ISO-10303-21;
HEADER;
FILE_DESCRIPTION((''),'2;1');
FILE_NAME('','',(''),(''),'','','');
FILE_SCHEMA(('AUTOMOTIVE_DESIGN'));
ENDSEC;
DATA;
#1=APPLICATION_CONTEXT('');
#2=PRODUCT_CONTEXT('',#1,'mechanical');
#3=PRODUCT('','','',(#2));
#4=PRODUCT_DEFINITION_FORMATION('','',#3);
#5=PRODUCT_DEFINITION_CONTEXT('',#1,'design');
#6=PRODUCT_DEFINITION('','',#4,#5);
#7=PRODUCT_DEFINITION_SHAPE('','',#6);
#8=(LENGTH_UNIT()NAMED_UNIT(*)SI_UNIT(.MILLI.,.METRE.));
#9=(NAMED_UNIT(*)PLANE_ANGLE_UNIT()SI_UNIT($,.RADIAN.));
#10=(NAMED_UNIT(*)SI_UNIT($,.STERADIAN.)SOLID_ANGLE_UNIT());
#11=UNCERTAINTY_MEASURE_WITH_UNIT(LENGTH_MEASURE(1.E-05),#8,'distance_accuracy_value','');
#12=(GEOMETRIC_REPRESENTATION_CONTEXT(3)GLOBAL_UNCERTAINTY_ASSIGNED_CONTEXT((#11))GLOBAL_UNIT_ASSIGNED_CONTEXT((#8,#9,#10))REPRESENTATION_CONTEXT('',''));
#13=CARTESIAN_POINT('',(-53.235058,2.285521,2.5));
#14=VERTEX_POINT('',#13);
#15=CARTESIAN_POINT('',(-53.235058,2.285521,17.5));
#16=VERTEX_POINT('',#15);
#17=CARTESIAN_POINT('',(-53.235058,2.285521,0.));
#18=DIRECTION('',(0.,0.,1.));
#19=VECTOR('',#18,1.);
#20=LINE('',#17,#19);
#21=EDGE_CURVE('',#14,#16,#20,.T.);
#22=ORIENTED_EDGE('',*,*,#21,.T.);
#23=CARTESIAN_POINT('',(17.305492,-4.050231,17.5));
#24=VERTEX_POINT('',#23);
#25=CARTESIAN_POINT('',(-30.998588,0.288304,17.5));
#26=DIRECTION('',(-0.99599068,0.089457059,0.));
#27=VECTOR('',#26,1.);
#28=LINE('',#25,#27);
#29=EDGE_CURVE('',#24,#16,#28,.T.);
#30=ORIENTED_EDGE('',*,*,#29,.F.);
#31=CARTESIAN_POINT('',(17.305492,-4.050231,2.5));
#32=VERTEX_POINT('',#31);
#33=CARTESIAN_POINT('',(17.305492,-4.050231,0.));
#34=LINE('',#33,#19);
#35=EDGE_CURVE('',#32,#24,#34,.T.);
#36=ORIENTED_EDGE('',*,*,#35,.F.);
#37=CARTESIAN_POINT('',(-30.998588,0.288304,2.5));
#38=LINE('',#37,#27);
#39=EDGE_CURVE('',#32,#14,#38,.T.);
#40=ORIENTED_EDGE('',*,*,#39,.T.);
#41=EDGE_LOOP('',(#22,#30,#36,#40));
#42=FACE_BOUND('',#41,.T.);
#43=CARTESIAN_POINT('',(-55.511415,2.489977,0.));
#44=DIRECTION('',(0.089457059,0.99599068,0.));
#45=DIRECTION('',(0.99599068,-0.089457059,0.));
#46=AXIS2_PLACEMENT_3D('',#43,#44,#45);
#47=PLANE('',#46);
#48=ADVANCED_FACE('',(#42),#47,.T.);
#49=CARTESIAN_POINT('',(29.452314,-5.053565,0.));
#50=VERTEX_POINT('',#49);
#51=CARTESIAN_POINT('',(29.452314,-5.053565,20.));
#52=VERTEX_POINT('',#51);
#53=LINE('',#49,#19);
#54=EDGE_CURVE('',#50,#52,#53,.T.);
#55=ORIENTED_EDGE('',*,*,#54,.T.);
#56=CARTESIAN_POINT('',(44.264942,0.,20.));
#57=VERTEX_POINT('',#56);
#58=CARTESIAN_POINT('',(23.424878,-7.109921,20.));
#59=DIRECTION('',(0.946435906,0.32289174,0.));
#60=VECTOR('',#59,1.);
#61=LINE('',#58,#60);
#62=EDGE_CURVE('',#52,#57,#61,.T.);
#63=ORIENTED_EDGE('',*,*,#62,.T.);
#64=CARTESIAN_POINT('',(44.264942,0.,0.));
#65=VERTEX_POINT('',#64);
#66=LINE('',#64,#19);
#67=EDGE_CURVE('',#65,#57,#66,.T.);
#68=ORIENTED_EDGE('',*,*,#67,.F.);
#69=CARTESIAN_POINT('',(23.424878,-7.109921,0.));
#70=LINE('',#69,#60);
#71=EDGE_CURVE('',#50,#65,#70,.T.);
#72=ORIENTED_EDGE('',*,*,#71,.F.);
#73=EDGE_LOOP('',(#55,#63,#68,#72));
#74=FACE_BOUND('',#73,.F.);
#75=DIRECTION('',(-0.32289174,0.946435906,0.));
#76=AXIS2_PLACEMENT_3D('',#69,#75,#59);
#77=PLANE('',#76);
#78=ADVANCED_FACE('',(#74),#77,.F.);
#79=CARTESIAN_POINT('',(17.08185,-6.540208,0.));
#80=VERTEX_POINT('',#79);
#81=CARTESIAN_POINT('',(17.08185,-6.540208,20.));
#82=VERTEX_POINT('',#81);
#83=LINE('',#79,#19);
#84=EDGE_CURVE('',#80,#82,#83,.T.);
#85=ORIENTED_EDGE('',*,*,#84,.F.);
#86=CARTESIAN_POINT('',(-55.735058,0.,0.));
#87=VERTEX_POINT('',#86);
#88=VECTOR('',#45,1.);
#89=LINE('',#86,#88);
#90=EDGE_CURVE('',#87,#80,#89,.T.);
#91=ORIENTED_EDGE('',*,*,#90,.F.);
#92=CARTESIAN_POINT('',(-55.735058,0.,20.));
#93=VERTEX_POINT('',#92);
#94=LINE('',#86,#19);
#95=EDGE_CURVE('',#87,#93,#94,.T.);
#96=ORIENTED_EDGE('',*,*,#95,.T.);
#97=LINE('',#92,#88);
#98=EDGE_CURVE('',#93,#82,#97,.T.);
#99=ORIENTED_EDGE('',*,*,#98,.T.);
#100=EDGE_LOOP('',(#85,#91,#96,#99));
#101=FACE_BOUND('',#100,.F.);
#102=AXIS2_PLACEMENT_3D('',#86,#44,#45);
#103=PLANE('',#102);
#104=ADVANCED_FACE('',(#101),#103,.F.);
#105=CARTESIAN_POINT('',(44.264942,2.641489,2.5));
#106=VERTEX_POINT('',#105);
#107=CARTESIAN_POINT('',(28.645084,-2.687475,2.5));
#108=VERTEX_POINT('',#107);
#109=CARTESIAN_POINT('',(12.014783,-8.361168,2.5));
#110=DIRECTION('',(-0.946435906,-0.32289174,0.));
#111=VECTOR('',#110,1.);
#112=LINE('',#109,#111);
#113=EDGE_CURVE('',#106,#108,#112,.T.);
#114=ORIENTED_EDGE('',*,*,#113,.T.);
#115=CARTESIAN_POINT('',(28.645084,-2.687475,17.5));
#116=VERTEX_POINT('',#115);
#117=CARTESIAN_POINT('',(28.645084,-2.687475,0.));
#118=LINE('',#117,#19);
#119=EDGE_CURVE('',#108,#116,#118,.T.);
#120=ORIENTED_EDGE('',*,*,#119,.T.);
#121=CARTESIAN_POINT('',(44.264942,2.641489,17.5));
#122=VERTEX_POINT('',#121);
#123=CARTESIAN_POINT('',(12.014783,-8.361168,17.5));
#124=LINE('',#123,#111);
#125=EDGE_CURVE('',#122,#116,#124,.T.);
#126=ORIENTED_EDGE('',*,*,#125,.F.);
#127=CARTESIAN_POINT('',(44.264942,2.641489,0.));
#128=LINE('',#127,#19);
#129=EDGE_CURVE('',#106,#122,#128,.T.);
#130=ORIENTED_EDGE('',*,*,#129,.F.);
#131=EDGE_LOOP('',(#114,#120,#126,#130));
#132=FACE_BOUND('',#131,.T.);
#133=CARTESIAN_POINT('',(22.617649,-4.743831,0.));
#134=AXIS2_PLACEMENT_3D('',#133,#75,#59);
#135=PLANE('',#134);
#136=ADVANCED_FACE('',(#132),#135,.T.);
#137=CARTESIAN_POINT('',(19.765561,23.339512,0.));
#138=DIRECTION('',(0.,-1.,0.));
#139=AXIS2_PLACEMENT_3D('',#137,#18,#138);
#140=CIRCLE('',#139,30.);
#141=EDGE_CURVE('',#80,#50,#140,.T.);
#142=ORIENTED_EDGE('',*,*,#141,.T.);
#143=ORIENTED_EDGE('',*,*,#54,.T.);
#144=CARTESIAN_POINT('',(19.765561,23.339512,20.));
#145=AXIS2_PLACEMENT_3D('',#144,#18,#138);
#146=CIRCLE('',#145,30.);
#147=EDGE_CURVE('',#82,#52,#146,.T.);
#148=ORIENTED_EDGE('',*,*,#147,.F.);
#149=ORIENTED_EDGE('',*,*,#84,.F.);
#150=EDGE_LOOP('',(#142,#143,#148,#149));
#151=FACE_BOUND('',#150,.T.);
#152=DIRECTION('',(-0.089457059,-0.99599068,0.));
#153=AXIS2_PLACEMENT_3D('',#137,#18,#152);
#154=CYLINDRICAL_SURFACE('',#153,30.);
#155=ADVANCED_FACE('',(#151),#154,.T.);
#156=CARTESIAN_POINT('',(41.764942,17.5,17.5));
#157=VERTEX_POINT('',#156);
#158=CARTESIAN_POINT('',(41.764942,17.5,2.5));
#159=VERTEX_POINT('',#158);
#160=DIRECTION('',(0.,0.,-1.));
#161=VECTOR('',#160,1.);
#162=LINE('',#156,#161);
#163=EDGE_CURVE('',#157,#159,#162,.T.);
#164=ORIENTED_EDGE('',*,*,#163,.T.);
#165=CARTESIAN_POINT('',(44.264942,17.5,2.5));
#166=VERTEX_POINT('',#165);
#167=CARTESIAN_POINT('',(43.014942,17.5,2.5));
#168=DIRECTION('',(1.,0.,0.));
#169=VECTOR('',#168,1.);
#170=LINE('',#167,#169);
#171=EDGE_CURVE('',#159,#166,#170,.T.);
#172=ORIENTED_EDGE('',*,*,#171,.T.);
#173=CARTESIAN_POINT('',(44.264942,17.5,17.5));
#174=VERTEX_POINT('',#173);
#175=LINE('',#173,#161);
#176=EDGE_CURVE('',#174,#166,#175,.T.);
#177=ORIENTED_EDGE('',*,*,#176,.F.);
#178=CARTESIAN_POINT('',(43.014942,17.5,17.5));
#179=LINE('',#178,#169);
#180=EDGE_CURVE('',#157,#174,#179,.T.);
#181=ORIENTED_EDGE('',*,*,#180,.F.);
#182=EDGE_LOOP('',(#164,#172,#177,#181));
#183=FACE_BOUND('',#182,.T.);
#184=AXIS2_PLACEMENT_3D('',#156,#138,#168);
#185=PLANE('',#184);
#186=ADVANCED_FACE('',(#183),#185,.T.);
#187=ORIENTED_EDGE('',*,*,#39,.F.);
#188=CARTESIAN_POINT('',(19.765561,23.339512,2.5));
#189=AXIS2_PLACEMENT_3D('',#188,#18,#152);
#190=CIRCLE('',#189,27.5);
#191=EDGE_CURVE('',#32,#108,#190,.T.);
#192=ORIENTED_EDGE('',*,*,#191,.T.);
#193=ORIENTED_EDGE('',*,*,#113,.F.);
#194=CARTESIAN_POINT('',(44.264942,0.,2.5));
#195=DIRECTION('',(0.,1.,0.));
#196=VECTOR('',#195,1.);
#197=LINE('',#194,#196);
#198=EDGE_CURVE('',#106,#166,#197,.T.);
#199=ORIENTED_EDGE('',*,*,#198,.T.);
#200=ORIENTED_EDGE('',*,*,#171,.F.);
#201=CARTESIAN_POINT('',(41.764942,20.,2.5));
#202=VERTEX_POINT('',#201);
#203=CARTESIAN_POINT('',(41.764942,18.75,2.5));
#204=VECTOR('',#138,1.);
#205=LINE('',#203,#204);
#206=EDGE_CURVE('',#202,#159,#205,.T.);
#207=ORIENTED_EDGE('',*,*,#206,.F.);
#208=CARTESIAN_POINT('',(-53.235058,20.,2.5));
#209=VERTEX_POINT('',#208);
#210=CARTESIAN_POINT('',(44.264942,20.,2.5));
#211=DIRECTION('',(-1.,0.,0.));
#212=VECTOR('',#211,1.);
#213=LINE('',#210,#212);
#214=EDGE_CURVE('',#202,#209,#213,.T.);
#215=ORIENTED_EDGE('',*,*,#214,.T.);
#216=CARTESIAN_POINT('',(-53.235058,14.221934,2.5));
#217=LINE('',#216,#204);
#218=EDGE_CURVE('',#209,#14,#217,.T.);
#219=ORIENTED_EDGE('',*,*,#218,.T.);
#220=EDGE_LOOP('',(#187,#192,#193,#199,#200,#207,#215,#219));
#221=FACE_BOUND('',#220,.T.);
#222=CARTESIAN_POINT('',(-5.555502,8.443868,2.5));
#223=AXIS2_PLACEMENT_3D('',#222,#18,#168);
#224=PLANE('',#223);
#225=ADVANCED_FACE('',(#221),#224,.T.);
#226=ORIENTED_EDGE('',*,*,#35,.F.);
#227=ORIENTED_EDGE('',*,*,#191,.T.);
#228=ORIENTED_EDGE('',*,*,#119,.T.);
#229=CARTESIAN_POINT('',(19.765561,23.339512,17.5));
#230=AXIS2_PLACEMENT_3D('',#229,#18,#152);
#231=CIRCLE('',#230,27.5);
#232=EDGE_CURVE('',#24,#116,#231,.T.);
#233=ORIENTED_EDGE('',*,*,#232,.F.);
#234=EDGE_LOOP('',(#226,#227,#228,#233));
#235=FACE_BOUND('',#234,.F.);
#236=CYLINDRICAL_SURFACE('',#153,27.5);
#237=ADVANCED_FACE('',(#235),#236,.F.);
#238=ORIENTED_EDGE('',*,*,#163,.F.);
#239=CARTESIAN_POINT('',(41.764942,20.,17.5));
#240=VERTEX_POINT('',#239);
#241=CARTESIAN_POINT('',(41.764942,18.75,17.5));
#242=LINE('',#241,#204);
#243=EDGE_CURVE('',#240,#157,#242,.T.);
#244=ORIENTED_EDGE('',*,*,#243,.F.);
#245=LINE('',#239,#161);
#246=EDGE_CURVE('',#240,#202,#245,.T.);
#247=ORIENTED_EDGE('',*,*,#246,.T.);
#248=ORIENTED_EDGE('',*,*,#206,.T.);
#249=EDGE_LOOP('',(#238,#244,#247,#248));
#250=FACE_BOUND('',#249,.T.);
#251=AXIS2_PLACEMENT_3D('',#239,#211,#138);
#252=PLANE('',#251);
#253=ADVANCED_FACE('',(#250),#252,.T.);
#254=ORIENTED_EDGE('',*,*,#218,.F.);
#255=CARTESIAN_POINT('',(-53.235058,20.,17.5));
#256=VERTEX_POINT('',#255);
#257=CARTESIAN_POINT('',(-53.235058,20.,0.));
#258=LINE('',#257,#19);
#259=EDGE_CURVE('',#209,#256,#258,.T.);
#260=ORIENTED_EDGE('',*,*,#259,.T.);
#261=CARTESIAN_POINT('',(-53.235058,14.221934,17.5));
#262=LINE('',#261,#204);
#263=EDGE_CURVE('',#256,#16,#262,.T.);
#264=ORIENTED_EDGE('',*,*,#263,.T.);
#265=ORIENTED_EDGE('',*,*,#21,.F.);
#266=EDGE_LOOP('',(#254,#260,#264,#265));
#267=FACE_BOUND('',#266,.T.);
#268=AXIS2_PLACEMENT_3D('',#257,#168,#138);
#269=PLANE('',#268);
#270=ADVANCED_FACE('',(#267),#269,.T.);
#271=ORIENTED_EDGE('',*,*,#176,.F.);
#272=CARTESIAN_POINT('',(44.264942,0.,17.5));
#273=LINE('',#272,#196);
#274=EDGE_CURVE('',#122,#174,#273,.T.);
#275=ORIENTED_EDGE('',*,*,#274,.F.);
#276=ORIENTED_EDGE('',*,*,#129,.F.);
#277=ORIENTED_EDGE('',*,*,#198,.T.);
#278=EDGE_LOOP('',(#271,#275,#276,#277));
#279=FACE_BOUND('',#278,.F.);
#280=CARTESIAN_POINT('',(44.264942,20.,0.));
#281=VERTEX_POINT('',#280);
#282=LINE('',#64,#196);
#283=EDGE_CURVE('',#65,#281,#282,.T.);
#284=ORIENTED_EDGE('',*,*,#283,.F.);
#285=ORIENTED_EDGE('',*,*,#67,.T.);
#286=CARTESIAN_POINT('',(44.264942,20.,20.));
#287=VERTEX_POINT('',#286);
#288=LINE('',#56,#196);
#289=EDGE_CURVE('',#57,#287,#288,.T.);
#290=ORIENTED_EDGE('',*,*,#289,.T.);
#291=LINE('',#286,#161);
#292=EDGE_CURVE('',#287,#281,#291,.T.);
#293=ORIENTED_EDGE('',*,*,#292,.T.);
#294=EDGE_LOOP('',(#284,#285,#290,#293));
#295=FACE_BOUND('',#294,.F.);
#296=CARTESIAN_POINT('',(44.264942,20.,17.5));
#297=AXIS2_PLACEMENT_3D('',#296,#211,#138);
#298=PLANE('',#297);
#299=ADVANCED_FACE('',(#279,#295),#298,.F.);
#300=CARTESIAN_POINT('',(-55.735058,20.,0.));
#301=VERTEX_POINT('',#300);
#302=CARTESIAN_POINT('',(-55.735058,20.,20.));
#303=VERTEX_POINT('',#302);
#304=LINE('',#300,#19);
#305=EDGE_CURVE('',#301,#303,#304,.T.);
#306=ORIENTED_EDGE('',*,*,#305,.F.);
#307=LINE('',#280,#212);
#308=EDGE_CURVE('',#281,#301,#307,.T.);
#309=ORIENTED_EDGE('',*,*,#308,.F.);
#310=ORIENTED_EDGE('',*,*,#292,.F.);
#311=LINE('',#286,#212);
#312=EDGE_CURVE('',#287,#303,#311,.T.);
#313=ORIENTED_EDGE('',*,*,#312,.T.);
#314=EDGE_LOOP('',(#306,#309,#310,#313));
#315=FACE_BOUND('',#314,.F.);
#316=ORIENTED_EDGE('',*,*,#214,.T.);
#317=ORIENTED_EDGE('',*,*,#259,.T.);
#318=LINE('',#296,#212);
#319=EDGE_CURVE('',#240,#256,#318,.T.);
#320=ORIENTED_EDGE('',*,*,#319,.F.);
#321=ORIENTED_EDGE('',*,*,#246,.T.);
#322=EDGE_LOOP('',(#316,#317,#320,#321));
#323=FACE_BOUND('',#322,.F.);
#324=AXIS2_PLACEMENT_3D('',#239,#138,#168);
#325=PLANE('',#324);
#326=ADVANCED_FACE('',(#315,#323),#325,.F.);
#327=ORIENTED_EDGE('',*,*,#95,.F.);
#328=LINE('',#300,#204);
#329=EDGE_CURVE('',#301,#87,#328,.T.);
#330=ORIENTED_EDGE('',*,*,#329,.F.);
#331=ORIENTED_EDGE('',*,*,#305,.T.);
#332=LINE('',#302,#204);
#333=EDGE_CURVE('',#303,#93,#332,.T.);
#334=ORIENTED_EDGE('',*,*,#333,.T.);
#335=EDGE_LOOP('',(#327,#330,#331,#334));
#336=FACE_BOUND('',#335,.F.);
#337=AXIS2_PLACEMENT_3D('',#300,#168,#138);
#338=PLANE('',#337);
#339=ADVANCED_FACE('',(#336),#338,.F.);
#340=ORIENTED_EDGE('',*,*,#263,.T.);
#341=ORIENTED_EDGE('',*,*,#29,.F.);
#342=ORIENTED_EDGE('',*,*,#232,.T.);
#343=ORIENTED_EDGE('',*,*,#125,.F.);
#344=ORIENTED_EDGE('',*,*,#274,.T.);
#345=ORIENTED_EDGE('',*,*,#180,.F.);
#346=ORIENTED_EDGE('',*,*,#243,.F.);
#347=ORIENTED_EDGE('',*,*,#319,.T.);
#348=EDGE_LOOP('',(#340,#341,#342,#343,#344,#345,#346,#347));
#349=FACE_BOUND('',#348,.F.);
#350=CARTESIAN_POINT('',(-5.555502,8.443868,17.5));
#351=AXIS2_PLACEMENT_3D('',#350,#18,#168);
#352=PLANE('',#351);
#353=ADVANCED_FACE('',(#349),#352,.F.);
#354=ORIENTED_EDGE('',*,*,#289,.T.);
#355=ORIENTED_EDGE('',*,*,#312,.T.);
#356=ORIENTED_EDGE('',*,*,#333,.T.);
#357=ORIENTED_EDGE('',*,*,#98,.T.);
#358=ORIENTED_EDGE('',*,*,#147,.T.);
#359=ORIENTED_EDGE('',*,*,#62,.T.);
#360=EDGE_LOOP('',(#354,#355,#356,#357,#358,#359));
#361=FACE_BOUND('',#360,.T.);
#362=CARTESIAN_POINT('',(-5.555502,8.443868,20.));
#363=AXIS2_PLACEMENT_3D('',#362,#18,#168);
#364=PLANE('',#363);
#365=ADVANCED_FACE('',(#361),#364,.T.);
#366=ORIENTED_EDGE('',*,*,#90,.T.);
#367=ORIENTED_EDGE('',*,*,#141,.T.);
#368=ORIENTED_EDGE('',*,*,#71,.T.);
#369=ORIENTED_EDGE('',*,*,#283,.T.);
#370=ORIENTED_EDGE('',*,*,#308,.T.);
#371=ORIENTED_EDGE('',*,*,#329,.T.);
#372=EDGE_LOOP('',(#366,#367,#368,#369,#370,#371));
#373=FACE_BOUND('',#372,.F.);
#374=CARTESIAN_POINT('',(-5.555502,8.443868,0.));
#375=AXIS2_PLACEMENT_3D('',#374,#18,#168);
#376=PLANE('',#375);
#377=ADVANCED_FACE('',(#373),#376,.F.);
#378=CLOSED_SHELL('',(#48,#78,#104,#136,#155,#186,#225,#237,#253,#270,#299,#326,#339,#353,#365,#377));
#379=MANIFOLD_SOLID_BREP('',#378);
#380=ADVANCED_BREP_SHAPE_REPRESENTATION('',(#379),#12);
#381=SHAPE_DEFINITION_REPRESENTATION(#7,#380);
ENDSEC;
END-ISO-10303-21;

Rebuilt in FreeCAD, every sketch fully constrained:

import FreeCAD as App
import Part
import Sketcher

V = App.Vector


def edges_at(feature, points):
    """Names of the edges that pass closest to the given points."""
    edges = feature.Shape.Edges
    near = lambda p: min(range(len(edges)), key=lambda i: edges[i].distToShape(Part.Vertex(*p))[0])
    return sorted({f"Edge{near(p) + 1}" for p in points})


def faces_at(feature, points):
    """Names of the faces that lie closest to the given points."""
    faces = feature.Shape.Faces
    near = lambda p: min(range(len(faces)), key=lambda i: faces[i].distToShape(Part.Vertex(*p))[0])
    return sorted({f"Face{near(p) + 1}" for p in points})

doc = App.newDocument("Part")
body = doc.addObject("PartDesign::Body", "Body")

sketch1 = body.newObject("Sketcher::SketchObject", "Sketch")
sketch1.AttachmentSupport = (doc.getObject("XY_Plane"), [""])
sketch1.MapMode = "FlatFace"
sketch1.addGeometry([
    Part.LineSegment(V(44, 20, 0), V(-56, 20, 0)),
    Part.LineSegment(V(-56, 20, 0), V(-56, 0, 0)),
    Part.LineSegment(V(-56, 0, 0), V(23, -7, 0)),
    Part.LineSegment(V(23, -7, 0), V(44, 0, 0)),
    Part.LineSegment(V(44, 0, 0), V(44, 20, 0)),
], False)
sketch1.addConstraint([
    Sketcher.Constraint("Coincident", 0, 2, 1, 1),
    Sketcher.Constraint("Coincident", 1, 2, 2, 1),
    Sketcher.Constraint("Coincident", 2, 2, 3, 1),
    Sketcher.Constraint("Coincident", 3, 2, 4, 1),
    Sketcher.Constraint("Coincident", 4, 2, 0, 1),
    Sketcher.Constraint("Horizontal", 0),
    Sketcher.Constraint("Vertical", 1),
    Sketcher.Constraint("Vertical", 4),
    Sketcher.Constraint("PointOnObject", 1, 2, -1),
    Sketcher.Constraint("PointOnObject", 3, 2, -1),
    Sketcher.Constraint("DistanceX", 0, 2, 0, 1, 100.0),
    Sketcher.Constraint("DistanceY", 1, 2, 1, 1, 20.0),
    Sketcher.Constraint("Distance", 2, 79.478591),
    Sketcher.Constraint("Distance", 3, 22.01952),
    Sketcher.Constraint("DistanceX", 0, 2, -1, 1, 55.735058),
])
pad1 = body.newObject("PartDesign::Pad", "Pad")
pad1.Profile = sketch1
pad1.Length = 20
doc.recompute()

fillet = body.newObject("PartDesign::Fillet", "Fillet")
fillet.Base = (pad1, edges_at(pad1, [(23.425, -7.11, 10)]))
fillet.Radius = 30
doc.recompute()

thickness = body.newObject("PartDesign::Thickness", "Thickness")
thickness.Base = (fillet, faces_at(fillet, [(44.265, 10, 10), (-5.735, 20, 10)]))
thickness.Value = 2.5
thickness.Reversed = True
thickness.Join = "Arc"

sketch2 = body.newObject("Sketcher::SketchObject", "Sketch001")
sketch2.AttachmentSupport = (doc.getObject("XY_Plane"), [""])
sketch2.MapMode = "FlatFace"
sketch2.AttachmentOffset = App.Placement(V(0, 0, 17.5), App.Rotation())
sketch2.addGeometry([
    Part.LineSegment(V(41.8, 17.5, 0), V(41.8, 20, 0)),
    Part.LineSegment(V(41.8, 20, 0), V(44.3, 20, 0)),
    Part.LineSegment(V(44.3, 20, 0), V(44.3, 17.5, 0)),
    Part.LineSegment(V(44.3, 17.5, 0), V(41.8, 17.5, 0)),
], False)
sketch2.addConstraint([
    Sketcher.Constraint("Coincident", 0, 2, 1, 1),
    Sketcher.Constraint("Coincident", 1, 2, 2, 1),
    Sketcher.Constraint("Coincident", 2, 2, 3, 1),
    Sketcher.Constraint("Coincident", 3, 2, 0, 1),
    Sketcher.Constraint("Vertical", 0),
    Sketcher.Constraint("Horizontal", 1),
    Sketcher.Constraint("Vertical", 2),
    Sketcher.Constraint("Horizontal", 3),
    Sketcher.Constraint("Equal", 3, 0),
    Sketcher.Constraint("DistanceX", 1, 1, 1, 2, 2.5),
    Sketcher.Constraint("DistanceY", -1, 1, 0, 2, 20.0),
    Sketcher.Constraint("DistanceX", -1, 1, 0, 2, 41.764942),
])
pad2 = body.newObject("PartDesign::Pad", "Pad001")
pad2.Profile = sketch2
pad2.Length = 15
pad2.Reversed = True

doc.recompute()
